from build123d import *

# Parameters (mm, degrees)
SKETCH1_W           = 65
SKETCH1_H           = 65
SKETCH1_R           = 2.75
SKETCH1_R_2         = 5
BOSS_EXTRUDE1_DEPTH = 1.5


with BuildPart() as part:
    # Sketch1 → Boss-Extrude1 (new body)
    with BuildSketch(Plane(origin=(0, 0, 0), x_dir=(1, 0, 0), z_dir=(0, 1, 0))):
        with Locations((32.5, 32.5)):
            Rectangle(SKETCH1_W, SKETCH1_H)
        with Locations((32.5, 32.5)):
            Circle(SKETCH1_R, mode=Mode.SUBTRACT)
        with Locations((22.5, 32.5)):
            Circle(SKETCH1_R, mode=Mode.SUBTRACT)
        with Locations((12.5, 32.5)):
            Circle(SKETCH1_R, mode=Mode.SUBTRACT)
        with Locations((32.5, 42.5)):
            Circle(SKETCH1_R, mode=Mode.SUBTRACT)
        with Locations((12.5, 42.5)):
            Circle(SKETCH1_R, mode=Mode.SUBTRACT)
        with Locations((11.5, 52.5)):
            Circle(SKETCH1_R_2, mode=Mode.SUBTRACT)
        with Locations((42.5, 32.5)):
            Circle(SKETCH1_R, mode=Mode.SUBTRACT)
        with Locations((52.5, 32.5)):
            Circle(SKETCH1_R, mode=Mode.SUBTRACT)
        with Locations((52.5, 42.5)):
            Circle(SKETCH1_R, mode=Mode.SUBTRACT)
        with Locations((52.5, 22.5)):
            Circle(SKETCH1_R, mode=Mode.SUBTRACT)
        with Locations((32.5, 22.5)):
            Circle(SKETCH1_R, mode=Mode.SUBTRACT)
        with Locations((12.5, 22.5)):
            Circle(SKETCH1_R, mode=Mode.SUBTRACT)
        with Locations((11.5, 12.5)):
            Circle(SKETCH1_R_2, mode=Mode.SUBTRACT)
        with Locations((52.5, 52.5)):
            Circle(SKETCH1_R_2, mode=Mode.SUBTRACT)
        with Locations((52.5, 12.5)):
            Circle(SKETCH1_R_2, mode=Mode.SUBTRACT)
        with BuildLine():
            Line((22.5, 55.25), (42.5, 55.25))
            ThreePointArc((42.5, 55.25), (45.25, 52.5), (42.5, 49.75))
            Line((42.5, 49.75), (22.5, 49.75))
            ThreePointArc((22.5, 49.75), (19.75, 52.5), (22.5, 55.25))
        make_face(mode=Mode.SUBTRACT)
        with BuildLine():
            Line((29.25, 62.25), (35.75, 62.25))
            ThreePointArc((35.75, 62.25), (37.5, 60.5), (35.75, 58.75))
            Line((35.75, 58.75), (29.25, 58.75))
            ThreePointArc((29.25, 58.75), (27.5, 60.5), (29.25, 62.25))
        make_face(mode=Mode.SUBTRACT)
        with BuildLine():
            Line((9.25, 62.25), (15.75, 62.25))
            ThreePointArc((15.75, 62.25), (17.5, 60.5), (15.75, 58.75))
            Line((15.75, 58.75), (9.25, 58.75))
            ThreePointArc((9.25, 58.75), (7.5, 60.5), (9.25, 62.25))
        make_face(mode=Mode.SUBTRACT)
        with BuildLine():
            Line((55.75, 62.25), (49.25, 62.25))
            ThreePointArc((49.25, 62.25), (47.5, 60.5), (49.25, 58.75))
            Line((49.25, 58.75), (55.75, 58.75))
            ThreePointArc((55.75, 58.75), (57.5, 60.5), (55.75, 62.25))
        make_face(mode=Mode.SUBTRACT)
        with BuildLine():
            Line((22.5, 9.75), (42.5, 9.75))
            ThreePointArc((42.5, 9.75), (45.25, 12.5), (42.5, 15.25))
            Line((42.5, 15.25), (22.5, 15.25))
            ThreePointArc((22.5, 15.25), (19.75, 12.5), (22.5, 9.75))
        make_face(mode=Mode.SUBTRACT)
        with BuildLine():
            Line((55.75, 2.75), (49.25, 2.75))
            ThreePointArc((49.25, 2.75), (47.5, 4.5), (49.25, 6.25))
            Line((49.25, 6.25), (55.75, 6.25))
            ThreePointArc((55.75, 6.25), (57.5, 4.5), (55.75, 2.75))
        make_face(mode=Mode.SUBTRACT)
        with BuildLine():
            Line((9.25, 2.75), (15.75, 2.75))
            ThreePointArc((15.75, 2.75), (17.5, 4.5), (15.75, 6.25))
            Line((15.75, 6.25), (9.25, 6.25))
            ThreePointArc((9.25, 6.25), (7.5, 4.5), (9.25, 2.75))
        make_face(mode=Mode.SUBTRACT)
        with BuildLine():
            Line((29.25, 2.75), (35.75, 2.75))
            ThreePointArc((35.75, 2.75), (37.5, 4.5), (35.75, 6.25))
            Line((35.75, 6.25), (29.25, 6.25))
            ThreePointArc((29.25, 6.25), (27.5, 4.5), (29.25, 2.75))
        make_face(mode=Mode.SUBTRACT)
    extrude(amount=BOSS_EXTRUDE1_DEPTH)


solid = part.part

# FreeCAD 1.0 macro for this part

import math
import FreeCAD as App
import Part
import Sketcher

V = App.Vector


def add_polygon(sketch, points):
    """Adds a closed chain of lines whose ends are joined by coincident constraints."""
    first, n = sketch.GeometryCount, len(points)
    for a, b in zip(points, points[1:] + points[:1]):
        sketch.addGeometry(Part.LineSegment(App.Vector(*a, 0), App.Vector(*b, 0)), False)
    for i in range(n):
        sketch.addConstraint(Sketcher.Constraint("Coincident", first + i, 2, first + (i + 1) % n, 1))

doc = App.newDocument("Part")
body = doc.addObject("PartDesign::Body", "Body")

sketch1 = body.newObject("Sketcher::SketchObject", "Sketch")
sketch1.AttachmentSupport = (doc.getObject("XZ_Plane"), [""])
sketch1.MapMode = "FlatFace"
add_polygon(sketch1, [(0, -65), (0, 0), (65, 0), (65, -65)])
sketch1.addGeometry(Part.LineSegment(V(15.8, -2.8, 0), V(9.2, -2.8, 0)), False)
sketch1.addGeometry(Part.ArcOfCircle(Part.Circle(V(9.2, -4.5, 0), V(0, 0, 1), 1.8), math.radians(90), math.radians(270)), False)
sketch1.addGeometry(Part.LineSegment(V(9.2, -6.2, 0), V(15.8, -6.2, 0)), False)
sketch1.addGeometry(Part.ArcOfCircle(Part.Circle(V(15.8, -4.5, 0), V(0, 0, 1), 1.8), math.radians(-90), math.radians(90)), False)
sketch1.addGeometry(Part.Circle(V(11.5, -12.5, 0), V(0, 0, 1), 5), False)
sketch1.addGeometry(Part.Circle(V(12.5, -22.5, 0), V(0, 0, 1), 2.8), False)
sketch1.addGeometry(Part.LineSegment(V(35.8, -2.8, 0), V(29.2, -2.8, 0)), False)
sketch1.addGeometry(Part.ArcOfCircle(Part.Circle(V(29.2, -4.5, 0), V(0, 0, 1), 1.8), math.radians(90), math.radians(270)), False)
sketch1.addGeometry(Part.LineSegment(V(29.2, -6.2, 0), V(35.8, -6.2, 0)), False)
sketch1.addGeometry(Part.ArcOfCircle(Part.Circle(V(35.8, -4.5, 0), V(0, 0, 1), 1.8), math.radians(-90), math.radians(90)), False)
sketch1.addGeometry(Part.LineSegment(V(42.5, -9.8, 0), V(22.5, -9.8, 0)), False)
sketch1.addGeometry(Part.ArcOfCircle(Part.Circle(V(22.5, -12.5, 0), V(0, 0, 1), 2.8), math.radians(90), math.radians(270)), False)
sketch1.addGeometry(Part.LineSegment(V(22.5, -15.2, 0), V(42.5, -15.2, 0)), False)
sketch1.addGeometry(Part.ArcOfCircle(Part.Circle(V(42.5, -12.5, 0), V(0, 0, 1), 2.8), math.radians(-90), math.radians(90)), False)
sketch1.addGeometry(Part.ArcOfCircle(Part.Circle(V(55.8, -4.5, 0), V(0, 0, 1), 1.8), math.radians(-90), math.radians(90)), False)
sketch1.addGeometry(Part.LineSegment(V(55.8, -2.8, 0), V(49.2, -2.8, 0)), False)
sketch1.addGeometry(Part.ArcOfCircle(Part.Circle(V(49.2, -4.5, 0), V(0, 0, 1), 1.8), math.radians(90), math.radians(270)), False)
sketch1.addGeometry(Part.LineSegment(V(49.2, -6.2, 0), V(55.8, -6.2, 0)), False)
sketch1.addGeometry(Part.Circle(V(52.5, -12.5, 0), V(0, 0, 1), 5), False)
sketch1.addGeometry(Part.Circle(V(32.5, -22.5, 0), V(0, 0, 1), 2.8), False)
sketch1.addGeometry(Part.Circle(V(52.5, -22.5, 0), V(0, 0, 1), 2.8), False)
sketch1.addGeometry(Part.Circle(V(12.5, -32.5, 0), V(0, 0, 1), 2.8), False)
sketch1.addGeometry(Part.Circle(V(12.5, -42.5, 0), V(0, 0, 1), 2.8), False)
sketch1.addGeometry(Part.Circle(V(22.5, -32.5, 0), V(0, 0, 1), 2.8), False)
sketch1.addGeometry(Part.Circle(V(11.5, -52.5, 0), V(0, 0, 1), 5), False)
sketch1.addGeometry(Part.ArcOfCircle(Part.Circle(V(9.2, -60.5, 0), V(0, 0, 1), 1.8), math.radians(90), math.radians(270)), False)
sketch1.addGeometry(Part.LineSegment(V(9.2, -62.2, 0), V(15.8, -62.2, 0)), False)
sketch1.addGeometry(Part.ArcOfCircle(Part.Circle(V(15.8, -60.5, 0), V(0, 0, 1), 1.8), math.radians(-90), math.radians(90)), False)
sketch1.addGeometry(Part.LineSegment(V(15.8, -58.8, 0), V(9.2, -58.8, 0)), False)
sketch1.addGeometry(Part.Circle(V(32.5, -32.5, 0), V(0, 0, 1), 2.8), False)
sketch1.addGeometry(Part.Circle(V(42.5, -32.5, 0), V(0, 0, 1), 2.8), False)
sketch1.addGeometry(Part.Circle(V(32.5, -42.5, 0), V(0, 0, 1), 2.8), False)
sketch1.addGeometry(Part.Circle(V(52.5, -32.5, 0), V(0, 0, 1), 2.8), False)
sketch1.addGeometry(Part.Circle(V(52.5, -42.5, 0), V(0, 0, 1), 2.8), False)
sketch1.addGeometry(Part.ArcOfCircle(Part.Circle(V(22.5, -52.5, 0), V(0, 0, 1), 2.8), math.radians(90), math.radians(270)), False)
sketch1.addGeometry(Part.LineSegment(V(22.5, -55.2, 0), V(42.5, -55.2, 0)), False)
sketch1.addGeometry(Part.ArcOfCircle(Part.Circle(V(42.5, -52.5, 0), V(0, 0, 1), 2.8), math.radians(-90), math.radians(90)), False)
sketch1.addGeometry(Part.LineSegment(V(42.5, -49.8, 0), V(22.5, -49.8, 0)), False)
sketch1.addGeometry(Part.ArcOfCircle(Part.Circle(V(29.2, -60.5, 0), V(0, 0, 1), 1.8), math.radians(90), math.radians(270)), False)
sketch1.addGeometry(Part.LineSegment(V(29.2, -62.2, 0), V(35.8, -62.2, 0)), False)
sketch1.addGeometry(Part.ArcOfCircle(Part.Circle(V(35.8, -60.5, 0), V(0, 0, 1), 1.8), math.radians(-90), math.radians(90)), False)
sketch1.addGeometry(Part.LineSegment(V(35.8, -58.8, 0), V(29.2, -58.8, 0)), False)
sketch1.addGeometry(Part.Circle(V(52.5, -52.5, 0), V(0, 0, 1), 5), False)
sketch1.addGeometry(Part.LineSegment(V(49.2, -62.2, 0), V(55.8, -62.2, 0)), False)
sketch1.addGeometry(Part.ArcOfCircle(Part.Circle(V(55.8, -60.5, 0), V(0, 0, 1), 1.8), math.radians(-90), math.radians(90)), False)
sketch1.addGeometry(Part.LineSegment(V(55.8, -58.8, 0), V(49.2, -58.8, 0)), False)
sketch1.addGeometry(Part.ArcOfCircle(Part.Circle(V(49.2, -60.5, 0), V(0, 0, 1), 1.8), math.radians(90), math.radians(270)), False)
sketch1.addConstraint([
    Sketcher.Constraint("Tangent", 4, 2, 5, 1),
    Sketcher.Constraint("Tangent", 5, 2, 6, 1),
    Sketcher.Constraint("Tangent", 6, 2, 7, 1),
    Sketcher.Constraint("Tangent", 7, 2, 4, 1),
    Sketcher.Constraint("Tangent", 10, 2, 11, 1),
    Sketcher.Constraint("Tangent", 11, 2, 12, 1),
    Sketcher.Constraint("Tangent", 12, 2, 13, 1),
    Sketcher.Constraint("Tangent", 13, 2, 10, 1),
    Sketcher.Constraint("Tangent", 14, 2, 15, 1),
    Sketcher.Constraint("Tangent", 15, 2, 16, 1),
    Sketcher.Constraint("Tangent", 16, 2, 17, 1),
    Sketcher.Constraint("Tangent", 17, 2, 14, 1),
    Sketcher.Constraint("Tangent", 18, 2, 19, 1),
    Sketcher.Constraint("Tangent", 19, 2, 20, 1),
    Sketcher.Constraint("Tangent", 20, 2, 21, 1),
    Sketcher.Constraint("Tangent", 21, 2, 18, 1),
    Sketcher.Constraint("Tangent", 29, 2, 30, 1),
    Sketcher.Constraint("Tangent", 30, 2, 31, 1),
    Sketcher.Constraint("Tangent", 31, 2, 32, 1),
    Sketcher.Constraint("Tangent", 32, 2, 29, 1),
    Sketcher.Constraint("Tangent", 38, 2, 39, 1),
    Sketcher.Constraint("Tangent", 39, 2, 40, 1),
    Sketcher.Constraint("Tangent", 40, 2, 41, 1),
    Sketcher.Constraint("Tangent", 41, 2, 38, 1),
    Sketcher.Constraint("Tangent", 42, 2, 43, 1),
    Sketcher.Constraint("Tangent", 43, 2, 44, 1),
    Sketcher.Constraint("Tangent", 44, 2, 45, 1),
    Sketcher.Constraint("Tangent", 45, 2, 42, 1),
    Sketcher.Constraint("Tangent", 47, 2, 48, 1),
    Sketcher.Constraint("Tangent", 48, 2, 49, 1),
    Sketcher.Constraint("Tangent", 49, 2, 50, 1),
    Sketcher.Constraint("Tangent", 50, 2, 47, 1),
    Sketcher.Constraint("Vertical", 0),
    Sketcher.Constraint("Horizontal", 1),
    Sketcher.Constraint("Vertical", 2),
    Sketcher.Constraint("Horizontal", 3),
    Sketcher.Constraint("Horizontal", 4),
    Sketcher.Constraint("Horizontal", 6),
    Sketcher.Constraint("Horizontal", 10),
    Sketcher.Constraint("Horizontal", 12),
    Sketcher.Constraint("Horizontal", 14),
    Sketcher.Constraint("Horizontal", 16),
    Sketcher.Constraint("Horizontal", 19),
    Sketcher.Constraint("Horizontal", 21),
    Sketcher.Constraint("Horizontal", 30),
    Sketcher.Constraint("Horizontal", 32),
    Sketcher.Constraint("Horizontal", 39),
    Sketcher.Constraint("Horizontal", 41),
    Sketcher.Constraint("Horizontal", 43),
    Sketcher.Constraint("Horizontal", 45),
    Sketcher.Constraint("Horizontal", 47),
    Sketcher.Constraint("Horizontal", 49),
    Sketcher.Constraint("Coincident", 0, 2, -1, 1),
    Sketcher.Constraint("Equal", 7, 11),
    Sketcher.Constraint("Equal", 9, 15),
    Sketcher.Constraint("Equal", 13, 18),
    Sketcher.Constraint("Equal", 8, 22),
    Sketcher.Constraint("Equal", 17, 23),
    Sketcher.Constraint("Equal", 23, 24),
    Sketcher.Constraint("Equal", 24, 25),
    Sketcher.Constraint("Equal", 25, 26),
    Sketcher.Constraint("Equal", 26, 27),
    Sketcher.Constraint("Equal", 22, 28),
    Sketcher.Constraint("Equal", 20, 29),
    Sketcher.Constraint("Equal", 27, 33),
    Sketcher.Constraint("Equal", 33, 34),
    Sketcher.Constraint("Equal", 34, 35),
    Sketcher.Constraint("Equal", 35, 36),
    Sketcher.Constraint("Equal", 36, 37),
    Sketcher.Constraint("Equal", 37, 38),
    Sketcher.Constraint("Equal", 31, 42),
    Sketcher.Constraint("Equal", 28, 46),
    Sketcher.Constraint("Equal", 44, 48),
    Sketcher.Constraint("Horizontal", 7, 3, 11, 3),
    Sketcher.Constraint("Horizontal", 8, 3, 15, 3),
    Sketcher.Constraint("Horizontal", 13, 3, 18, 3),
    Sketcher.Constraint("Horizontal", 17, 3, 22, 3),
    Sketcher.Constraint("Horizontal", 9, 3, 23, 3),
    Sketcher.Constraint("Horizontal", 23, 3, 24, 3),
    Sketcher.Constraint("Horizontal", 25, 3, 27, 3),
    Sketcher.Constraint("Horizontal", 27, 3, 33, 3),
    Sketcher.Constraint("Horizontal", 33, 3, 34, 3),
    Sketcher.Constraint("Horizontal", 26, 3, 35, 3),
    Sketcher.Constraint("Horizontal", 34, 3, 36, 3),
    Sketcher.Constraint("Horizontal", 35, 3, 37, 3),
    Sketcher.Constraint("Horizontal", 28, 3, 38, 3),
    Sketcher.Constraint("Horizontal", 31, 3, 42, 3),
    Sketcher.Constraint("Horizontal", 40, 3, 46, 3),
    Sketcher.Constraint("Horizontal", 44, 3, 48, 3),
    Sketcher.Constraint("Vertical", 22, 3, 24, 3),
    Sketcher.Constraint("Vertical", 9, 3, 25, 3),
    Sketcher.Constraint("Vertical", 25, 3, 26, 3),
    Sketcher.Constraint("Vertical", 15, 3, 27, 3),
    Sketcher.Constraint("Vertical", 8, 3, 28, 3),
    Sketcher.Constraint("Vertical", 5, 3, 29, 3),
    Sketcher.Constraint("Vertical", 7, 3, 31, 3),
    Sketcher.Constraint("Vertical", 23, 3, 33, 3),
    Sketcher.Constraint("Vertical", 17, 3, 34, 3),
    Sketcher.Constraint("Vertical", 33, 3, 35, 3),
    Sketcher.Constraint("Vertical", 24, 3, 36, 3),
    Sketcher.Constraint("Vertical", 36, 3, 37, 3),
    Sketcher.Constraint("Vertical", 27, 3, 38, 3),
    Sketcher.Constraint("Vertical", 34, 3, 40, 3),
    Sketcher.Constraint("Vertical", 11, 3, 42, 3),
    Sketcher.Constraint("Vertical", 13, 3, 44, 3),
    Sketcher.Constraint("Vertical", 37, 3, 46, 3),
    Sketcher.Constraint("Vertical", 18, 3, 48, 3),
    Sketcher.Constraint("Vertical", 20, 3, 50, 3),
    Sketcher.Constraint("Equal", 6, 10),
    Sketcher.Constraint("Equal", 12, 19),
    Sketcher.Constraint("Equal", 3, 0),
    Sketcher.Constraint("Diameter", 8, 10.0),
    Sketcher.Constraint("Diameter", 9, 5.5),
    Sketcher.Constraint("DistanceX", 1, 1, 1, 2, 65.0),
    Sketcher.Constraint("DistanceX", 14, 2, 14, 1, 20.0),
    Sketcher.Constraint("Radius", 5, 1.75),
    Sketcher.Constraint("DistanceX", 4, 2, 4, 1, 6.5),
    Sketcher.Constraint("DistanceY", 5, 3, -1, 1, 4.5),
    Sketcher.Constraint("DistanceX", -1, 1, 8, 3, 11.5),
    Sketcher.Constraint("DistanceY", 8, 3, -1, 1, 12.5),
    Sketcher.Constraint("DistanceX", -1, 1, 9, 3, 12.5),
    Sketcher.Constraint("DistanceY", 9, 3, -1, 1, 22.5),
    Sketcher.Constraint("DistanceX", -1, 1, 15, 3, 22.5),
    Sketcher.Constraint("DistanceX", -1, 1, 22, 3, 52.5),
    Sketcher.Constraint("DistanceX", -1, 1, 23, 3, 32.5),
    Sketcher.Constraint("DistanceY", 25, 3, -1, 1, 32.5),
    Sketcher.Constraint("DistanceY", 26, 3, -1, 1, 42.5),
    Sketcher.Constraint("DistanceY", 28, 3, -1, 1, 52.5),
    Sketcher.Constraint("DistanceY", 29, 3, -1, 1, 60.5),
    Sketcher.Constraint("DistanceX", -1, 1, 5, 3, 9.25),
    Sketcher.Constraint("DistanceX", -1, 1, 11, 3, 29.25),
    Sketcher.Constraint("DistanceX", -1, 1, 18, 3, 55.75),
])
pad1 = body.newObject("PartDesign::Pad", "Pad")
pad1.Profile = sketch1
pad1.Length = 1.5
pad1.Reversed = True

doc.recompute()
